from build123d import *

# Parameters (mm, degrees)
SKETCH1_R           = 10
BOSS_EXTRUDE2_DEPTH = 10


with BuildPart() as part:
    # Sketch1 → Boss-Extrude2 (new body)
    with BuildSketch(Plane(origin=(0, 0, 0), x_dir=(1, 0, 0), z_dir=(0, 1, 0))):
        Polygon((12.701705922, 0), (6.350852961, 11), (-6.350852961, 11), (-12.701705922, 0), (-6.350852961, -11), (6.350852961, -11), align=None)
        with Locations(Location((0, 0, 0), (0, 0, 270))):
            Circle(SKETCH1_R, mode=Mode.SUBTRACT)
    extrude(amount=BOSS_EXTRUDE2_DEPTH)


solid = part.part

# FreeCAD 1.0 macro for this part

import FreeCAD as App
import Part
import Sketcher
from FreeCAD import Vector
Q = App.Units.Quantity

doc = App.newDocument("Part")
body = doc.addObject("PartDesign::Body", "Body")

sketch1 = body.newObject("Sketcher::SketchObject", "Sketch")
sketch1.AttachmentSupport = (doc.getObject("XZ_Plane"), [""])
sketch1.MapMode = "FlatFace"
sketch1.addGeometry([
    Part.LineSegment(Vector(13, 0, 0), Vector(6, -11, 0)),
    Part.LineSegment(Vector(6, -11, 0), Vector(-6, -11, 0)),
    Part.LineSegment(Vector(-6, -11, 0), Vector(-13, 0, 0)),
    Part.LineSegment(Vector(-13, 0, 0), Vector(-6, 11, 0)),
    Part.LineSegment(Vector(-6, 11, 0), Vector(6, 11, 0)),
    Part.LineSegment(Vector(6, 11, 0), Vector(13, 0, 0)),
    Part.Circle(Vector(0, 0, 0), Vector(0, 0, 1), 10),
], False)
sketch1.addConstraint([
    Sketcher.Constraint("Coincident", 0, 2, 1, 1),
    Sketcher.Constraint("Coincident", 1, 2, 2, 1),
    Sketcher.Constraint("Coincident", 2, 2, 3, 1),
    Sketcher.Constraint("Coincident", 3, 2, 4, 1),
    Sketcher.Constraint("Coincident", 4, 2, 5, 1),
    Sketcher.Constraint("Coincident", 5, 2, 0, 1),
    Sketcher.Constraint("Horizontal", 1),
    Sketcher.Constraint("Horizontal", 4),
    Sketcher.Constraint("Coincident", 6, 3, -1, 1),
    Sketcher.Constraint("Symmetric", 0, 2, 3, 2, -1, 1),
    Sketcher.Constraint("Symmetric", 2, 2, 5, 2, -1, 1),
    Sketcher.Constraint("PointOnObject", 2, 2, -1),
    Sketcher.Constraint("Parallel", 2, 5),
    Sketcher.Constraint("Vertical", 1, 2, 3, 2),
    Sketcher.Constraint("Diameter", 6, 20.0),
    Sketcher.Constraint("Angle", 0, Q("-120 deg")),
    Sketcher.Constraint("DistanceY", 0, 2, -1, 1, 11.0),
    Sketcher.Constraint("DistanceX", 1, 2, 1, 1, 12.701706),
])
pad1 = body.newObject("PartDesign::Pad", "Pad")
pad1.Profile = sketch1
pad1.Length = 10
pad1.Reversed = True

doc.recompute()
